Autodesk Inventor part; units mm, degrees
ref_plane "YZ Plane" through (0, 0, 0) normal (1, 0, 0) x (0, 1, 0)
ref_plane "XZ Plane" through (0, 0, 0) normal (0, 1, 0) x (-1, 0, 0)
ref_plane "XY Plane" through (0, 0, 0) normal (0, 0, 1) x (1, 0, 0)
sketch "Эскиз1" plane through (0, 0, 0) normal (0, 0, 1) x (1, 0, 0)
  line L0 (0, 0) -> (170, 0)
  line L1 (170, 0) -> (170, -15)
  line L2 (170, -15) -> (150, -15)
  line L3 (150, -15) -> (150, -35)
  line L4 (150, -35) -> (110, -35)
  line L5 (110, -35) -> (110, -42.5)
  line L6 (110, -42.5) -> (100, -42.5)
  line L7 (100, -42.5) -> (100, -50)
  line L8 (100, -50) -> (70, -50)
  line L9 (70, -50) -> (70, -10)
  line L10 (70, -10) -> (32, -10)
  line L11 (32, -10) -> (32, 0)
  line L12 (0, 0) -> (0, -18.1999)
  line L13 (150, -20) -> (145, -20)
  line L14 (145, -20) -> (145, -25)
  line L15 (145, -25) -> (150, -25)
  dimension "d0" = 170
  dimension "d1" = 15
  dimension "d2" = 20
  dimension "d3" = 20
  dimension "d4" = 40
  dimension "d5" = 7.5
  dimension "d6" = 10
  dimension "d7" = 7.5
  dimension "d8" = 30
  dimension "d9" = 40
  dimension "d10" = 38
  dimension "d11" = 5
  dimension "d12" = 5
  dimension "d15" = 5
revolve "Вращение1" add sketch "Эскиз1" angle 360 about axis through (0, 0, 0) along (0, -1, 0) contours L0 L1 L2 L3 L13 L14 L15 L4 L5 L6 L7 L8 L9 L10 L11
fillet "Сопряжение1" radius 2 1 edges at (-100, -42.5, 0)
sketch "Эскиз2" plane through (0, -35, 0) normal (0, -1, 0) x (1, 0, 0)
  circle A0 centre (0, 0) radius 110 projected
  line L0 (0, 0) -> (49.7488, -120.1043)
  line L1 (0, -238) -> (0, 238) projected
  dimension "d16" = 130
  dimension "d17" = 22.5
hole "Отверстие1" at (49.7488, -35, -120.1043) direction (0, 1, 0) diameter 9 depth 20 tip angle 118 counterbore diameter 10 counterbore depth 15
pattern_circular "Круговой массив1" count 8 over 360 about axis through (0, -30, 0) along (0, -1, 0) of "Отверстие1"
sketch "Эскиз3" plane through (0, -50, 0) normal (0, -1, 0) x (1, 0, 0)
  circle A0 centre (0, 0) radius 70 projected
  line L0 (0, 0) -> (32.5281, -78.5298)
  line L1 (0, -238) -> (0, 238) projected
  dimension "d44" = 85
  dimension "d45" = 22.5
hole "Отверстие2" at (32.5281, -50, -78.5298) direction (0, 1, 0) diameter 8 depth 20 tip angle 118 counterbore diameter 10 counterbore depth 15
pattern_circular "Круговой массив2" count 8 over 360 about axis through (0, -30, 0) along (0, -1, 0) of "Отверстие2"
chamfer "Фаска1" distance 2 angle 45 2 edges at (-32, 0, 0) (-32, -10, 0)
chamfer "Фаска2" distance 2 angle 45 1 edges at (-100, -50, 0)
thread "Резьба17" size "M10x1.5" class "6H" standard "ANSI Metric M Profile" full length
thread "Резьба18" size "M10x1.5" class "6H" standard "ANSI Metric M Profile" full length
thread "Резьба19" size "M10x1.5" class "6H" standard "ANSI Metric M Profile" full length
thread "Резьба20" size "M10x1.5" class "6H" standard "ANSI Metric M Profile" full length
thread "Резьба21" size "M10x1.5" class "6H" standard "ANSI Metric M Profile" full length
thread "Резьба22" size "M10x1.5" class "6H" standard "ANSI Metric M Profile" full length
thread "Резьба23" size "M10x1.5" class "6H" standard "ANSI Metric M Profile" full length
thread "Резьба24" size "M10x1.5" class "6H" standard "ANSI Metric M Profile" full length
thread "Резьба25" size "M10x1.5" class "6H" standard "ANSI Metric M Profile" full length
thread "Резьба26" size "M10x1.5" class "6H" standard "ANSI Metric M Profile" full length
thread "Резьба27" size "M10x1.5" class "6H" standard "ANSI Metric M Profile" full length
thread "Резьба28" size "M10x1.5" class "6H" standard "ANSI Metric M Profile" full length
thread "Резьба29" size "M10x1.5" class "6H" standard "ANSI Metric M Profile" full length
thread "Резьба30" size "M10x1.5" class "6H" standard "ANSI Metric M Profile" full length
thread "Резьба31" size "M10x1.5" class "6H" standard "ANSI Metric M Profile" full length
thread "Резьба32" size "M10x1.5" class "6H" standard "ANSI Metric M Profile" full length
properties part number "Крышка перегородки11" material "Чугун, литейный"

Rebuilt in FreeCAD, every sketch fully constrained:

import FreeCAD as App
import Part
import Sketcher


def edges_at(feature, points):
    """Names of the edges that pass closest to the given points."""
    edges = feature.Shape.Edges
    near = lambda p: min(range(len(edges)), key=lambda i: edges[i].distToShape(Part.Vertex(*p))[0])
    return sorted({f"Edge{near(p) + 1}" for p in points})


def add_polygon(sketch, points):
    """Adds a closed chain of lines whose ends are joined by coincident constraints."""
    first, n = sketch.GeometryCount, len(points)
    for a, b in zip(points, points[1:] + points[:1]):
        sketch.addGeometry(Part.LineSegment(App.Vector(*a, 0), App.Vector(*b, 0)), False)
    for i in range(n):
        sketch.addConstraint(Sketcher.Constraint("Coincident", first + i, 2, first + (i + 1) % n, 1))

doc = App.newDocument("Part")
body = doc.addObject("PartDesign::Body", "Body")

# Sketch on XY plane
sketch1 = doc.addObject("Sketcher::SketchObject", "Sketch")
body.addObject(sketch1)
sketch1.AttachmentSupport = (doc.XY_Plane, [""])
sketch1.MapMode = "FlatFace"
add_polygon(sketch1, [(170, 0), (32, 0), (32, -10), (70, -10), (70, -50), (100, -50), (100, -42.5), (110, -42.5), (110, -35), (150, -35), (150, -25), (145, -25), (145, -20), (150, -20), (150, -15), (170, -15)])  # lines 0-15
sketch1.addConstraint([
    Sketcher.Constraint("Horizontal", 0),
    Sketcher.Constraint("Vertical", 1),
    Sketcher.Constraint("Horizontal", 2),
    Sketcher.Constraint("Vertical", 3),
    Sketcher.Constraint("Horizontal", 4),
    Sketcher.Constraint("Vertical", 5),
    Sketcher.Constraint("Horizontal", 6),
    Sketcher.Constraint("Vertical", 7),
    Sketcher.Constraint("Horizontal", 8),
    Sketcher.Constraint("Vertical", 9),
    Sketcher.Constraint("Horizontal", 10),
    Sketcher.Constraint("Vertical", 11),
    Sketcher.Constraint("Horizontal", 12),
    Sketcher.Constraint("Vertical", 13),
    Sketcher.Constraint("Horizontal", 14),
    Sketcher.Constraint("Vertical", 15),
    Sketcher.Constraint("PointOnObject", 0, 2, -1),
    Sketcher.Constraint("Vertical", 9, 2, 12, 2),
    Sketcher.Constraint("Equal", 6, 1),
    Sketcher.Constraint("Equal", 8, 3),
    Sketcher.Constraint("Equal", 5, 7),
    Sketcher.Constraint("Equal", 1, 9),
    Sketcher.Constraint("Equal", 12, 11),
    Sketcher.Constraint("Equal", 11, 13),
    Sketcher.Constraint("DistanceX", 2, 1, 2, 2, 38.0),
    Sketcher.Constraint("DistanceX", 4, 1, 4, 2, 30.0),
    Sketcher.Constraint("DistanceX", 6, 1, 6, 2, 10.0),
    Sketcher.Constraint("DistanceX", 8, 1, 8, 2, 40.0),
    Sketcher.Constraint("DistanceX", 10, 2, 10, 1, 5.0),
    Sketcher.Constraint("DistanceX", 14, 1, 14, 2, 20.0),
    Sketcher.Constraint("DistanceY", 15, 1, 15, 2, 15.0),
    Sketcher.Constraint("DistanceX", -1, 1, 14, 2, 170.0),
])
revolution = doc.addObject("PartDesign::Revolution", "Revolution")
body.addObject(revolution)
revolution.Profile = sketch1
revolution.ReferenceAxis = (sketch1, ["V_Axis"])
revolution.Angle = 360
doc.recompute()

fillet = doc.addObject("PartDesign::Fillet", "Fillet")
body.addObject(fillet)
fillet.Base = (revolution, edges_at(revolution, [(-100, -42.5, 0)]))
fillet.Radius = 2

# Sketch on XZ plane
sketch2 = doc.addObject("Sketcher::SketchObject", "Sketch001")
body.addObject(sketch2)
sketch2.AttachmentSupport = (doc.XZ_Plane, [""])
sketch2.MapMode = "FlatFace"
sketch2.AttachmentOffset = App.Placement(App.Vector(0, 0, 35), App.Rotation())
sketch2.addGeometry(Part.Circle(App.Vector(49.7488, -120.1043, 0), App.Vector(0, 0, 1), 4.5), False)
sketch2.addConstraint([
    Sketcher.Constraint("Diameter", 0, 9.0),
    Sketcher.Constraint("DistanceX", -1, 1, 0, 3, 49.7488),
    Sketcher.Constraint("DistanceY", 0, 3, -1, 1, 120.1043),
])
doc.recompute()
hole = doc.addObject("PartDesign::Hole", "Hole")
body.addObject(hole)
hole.Profile = sketch2
hole.ThreadType = "None"
hole.Diameter = 9
hole.DepthType = "Dimension"
hole.Depth = 20
hole.DrillPoint = "Angled"
hole.DrillPointAngle = 118
hole.HoleCutType = "Counterbore"
hole.HoleCutDiameter = 10
hole.HoleCutDepth = 15
doc.recompute()

polarpattern = doc.addObject("PartDesign::PolarPattern", "PolarPattern")
body.addObject(polarpattern)
polarpattern.Originals = [hole]
polarpattern.Axis = (doc.Y_Axis, [""])
polarpattern.Angle = 360
polarpattern.Occurrences = 8
body.Tip = polarpattern

# Sketch on XZ plane
sketch3 = doc.addObject("Sketcher::SketchObject", "Sketch002")
body.addObject(sketch3)
sketch3.AttachmentSupport = (doc.XZ_Plane, [""])
sketch3.MapMode = "FlatFace"
sketch3.AttachmentOffset = App.Placement(App.Vector(0, 0, 50), App.Rotation())
sketch3.addGeometry(Part.Circle(App.Vector(32.5281, -78.5298, 0), App.Vector(0, 0, 1), 4), False)
sketch3.addConstraint([
    Sketcher.Constraint("Diameter", 0, 8.0),
    Sketcher.Constraint("DistanceX", -1, 1, 0, 3, 32.528),
    Sketcher.Constraint("DistanceY", 0, 3, -1, 1, 78.5298),
])
doc.recompute()
hole2 = doc.addObject("PartDesign::Hole", "Hole001")
body.addObject(hole2)
hole2.Profile = sketch3
hole2.ThreadType = "None"
hole2.Diameter = 8
hole2.DepthType = "Dimension"
hole2.Depth = 20
hole2.DrillPoint = "Angled"
hole2.DrillPointAngle = 118
hole2.HoleCutType = "Counterbore"
hole2.HoleCutDiameter = 10
hole2.HoleCutDepth = 15
doc.recompute()

polarpattern2 = doc.addObject("PartDesign::PolarPattern", "PolarPattern001")
body.addObject(polarpattern2)
polarpattern2.Originals = [hole2]
polarpattern2.Axis = (doc.Y_Axis, [""])
polarpattern2.Angle = 360
polarpattern2.Occurrences = 8
body.Tip = polarpattern2
doc.recompute()

chamfer = doc.addObject("PartDesign::Chamfer", "Chamfer")
body.addObject(chamfer)
chamfer.Base = (polarpattern2, edges_at(polarpattern2, [(-32, 0, 0), (-32, -10, 0)]))
chamfer.Size = 2
doc.recompute()

chamfer2 = doc.addObject("PartDesign::Chamfer", "Chamfer001")
body.addObject(chamfer2)
chamfer2.Base = (chamfer, edges_at(chamfer, [(-100, -50, 0)]))
chamfer2.Size = 2

doc.recompute()
